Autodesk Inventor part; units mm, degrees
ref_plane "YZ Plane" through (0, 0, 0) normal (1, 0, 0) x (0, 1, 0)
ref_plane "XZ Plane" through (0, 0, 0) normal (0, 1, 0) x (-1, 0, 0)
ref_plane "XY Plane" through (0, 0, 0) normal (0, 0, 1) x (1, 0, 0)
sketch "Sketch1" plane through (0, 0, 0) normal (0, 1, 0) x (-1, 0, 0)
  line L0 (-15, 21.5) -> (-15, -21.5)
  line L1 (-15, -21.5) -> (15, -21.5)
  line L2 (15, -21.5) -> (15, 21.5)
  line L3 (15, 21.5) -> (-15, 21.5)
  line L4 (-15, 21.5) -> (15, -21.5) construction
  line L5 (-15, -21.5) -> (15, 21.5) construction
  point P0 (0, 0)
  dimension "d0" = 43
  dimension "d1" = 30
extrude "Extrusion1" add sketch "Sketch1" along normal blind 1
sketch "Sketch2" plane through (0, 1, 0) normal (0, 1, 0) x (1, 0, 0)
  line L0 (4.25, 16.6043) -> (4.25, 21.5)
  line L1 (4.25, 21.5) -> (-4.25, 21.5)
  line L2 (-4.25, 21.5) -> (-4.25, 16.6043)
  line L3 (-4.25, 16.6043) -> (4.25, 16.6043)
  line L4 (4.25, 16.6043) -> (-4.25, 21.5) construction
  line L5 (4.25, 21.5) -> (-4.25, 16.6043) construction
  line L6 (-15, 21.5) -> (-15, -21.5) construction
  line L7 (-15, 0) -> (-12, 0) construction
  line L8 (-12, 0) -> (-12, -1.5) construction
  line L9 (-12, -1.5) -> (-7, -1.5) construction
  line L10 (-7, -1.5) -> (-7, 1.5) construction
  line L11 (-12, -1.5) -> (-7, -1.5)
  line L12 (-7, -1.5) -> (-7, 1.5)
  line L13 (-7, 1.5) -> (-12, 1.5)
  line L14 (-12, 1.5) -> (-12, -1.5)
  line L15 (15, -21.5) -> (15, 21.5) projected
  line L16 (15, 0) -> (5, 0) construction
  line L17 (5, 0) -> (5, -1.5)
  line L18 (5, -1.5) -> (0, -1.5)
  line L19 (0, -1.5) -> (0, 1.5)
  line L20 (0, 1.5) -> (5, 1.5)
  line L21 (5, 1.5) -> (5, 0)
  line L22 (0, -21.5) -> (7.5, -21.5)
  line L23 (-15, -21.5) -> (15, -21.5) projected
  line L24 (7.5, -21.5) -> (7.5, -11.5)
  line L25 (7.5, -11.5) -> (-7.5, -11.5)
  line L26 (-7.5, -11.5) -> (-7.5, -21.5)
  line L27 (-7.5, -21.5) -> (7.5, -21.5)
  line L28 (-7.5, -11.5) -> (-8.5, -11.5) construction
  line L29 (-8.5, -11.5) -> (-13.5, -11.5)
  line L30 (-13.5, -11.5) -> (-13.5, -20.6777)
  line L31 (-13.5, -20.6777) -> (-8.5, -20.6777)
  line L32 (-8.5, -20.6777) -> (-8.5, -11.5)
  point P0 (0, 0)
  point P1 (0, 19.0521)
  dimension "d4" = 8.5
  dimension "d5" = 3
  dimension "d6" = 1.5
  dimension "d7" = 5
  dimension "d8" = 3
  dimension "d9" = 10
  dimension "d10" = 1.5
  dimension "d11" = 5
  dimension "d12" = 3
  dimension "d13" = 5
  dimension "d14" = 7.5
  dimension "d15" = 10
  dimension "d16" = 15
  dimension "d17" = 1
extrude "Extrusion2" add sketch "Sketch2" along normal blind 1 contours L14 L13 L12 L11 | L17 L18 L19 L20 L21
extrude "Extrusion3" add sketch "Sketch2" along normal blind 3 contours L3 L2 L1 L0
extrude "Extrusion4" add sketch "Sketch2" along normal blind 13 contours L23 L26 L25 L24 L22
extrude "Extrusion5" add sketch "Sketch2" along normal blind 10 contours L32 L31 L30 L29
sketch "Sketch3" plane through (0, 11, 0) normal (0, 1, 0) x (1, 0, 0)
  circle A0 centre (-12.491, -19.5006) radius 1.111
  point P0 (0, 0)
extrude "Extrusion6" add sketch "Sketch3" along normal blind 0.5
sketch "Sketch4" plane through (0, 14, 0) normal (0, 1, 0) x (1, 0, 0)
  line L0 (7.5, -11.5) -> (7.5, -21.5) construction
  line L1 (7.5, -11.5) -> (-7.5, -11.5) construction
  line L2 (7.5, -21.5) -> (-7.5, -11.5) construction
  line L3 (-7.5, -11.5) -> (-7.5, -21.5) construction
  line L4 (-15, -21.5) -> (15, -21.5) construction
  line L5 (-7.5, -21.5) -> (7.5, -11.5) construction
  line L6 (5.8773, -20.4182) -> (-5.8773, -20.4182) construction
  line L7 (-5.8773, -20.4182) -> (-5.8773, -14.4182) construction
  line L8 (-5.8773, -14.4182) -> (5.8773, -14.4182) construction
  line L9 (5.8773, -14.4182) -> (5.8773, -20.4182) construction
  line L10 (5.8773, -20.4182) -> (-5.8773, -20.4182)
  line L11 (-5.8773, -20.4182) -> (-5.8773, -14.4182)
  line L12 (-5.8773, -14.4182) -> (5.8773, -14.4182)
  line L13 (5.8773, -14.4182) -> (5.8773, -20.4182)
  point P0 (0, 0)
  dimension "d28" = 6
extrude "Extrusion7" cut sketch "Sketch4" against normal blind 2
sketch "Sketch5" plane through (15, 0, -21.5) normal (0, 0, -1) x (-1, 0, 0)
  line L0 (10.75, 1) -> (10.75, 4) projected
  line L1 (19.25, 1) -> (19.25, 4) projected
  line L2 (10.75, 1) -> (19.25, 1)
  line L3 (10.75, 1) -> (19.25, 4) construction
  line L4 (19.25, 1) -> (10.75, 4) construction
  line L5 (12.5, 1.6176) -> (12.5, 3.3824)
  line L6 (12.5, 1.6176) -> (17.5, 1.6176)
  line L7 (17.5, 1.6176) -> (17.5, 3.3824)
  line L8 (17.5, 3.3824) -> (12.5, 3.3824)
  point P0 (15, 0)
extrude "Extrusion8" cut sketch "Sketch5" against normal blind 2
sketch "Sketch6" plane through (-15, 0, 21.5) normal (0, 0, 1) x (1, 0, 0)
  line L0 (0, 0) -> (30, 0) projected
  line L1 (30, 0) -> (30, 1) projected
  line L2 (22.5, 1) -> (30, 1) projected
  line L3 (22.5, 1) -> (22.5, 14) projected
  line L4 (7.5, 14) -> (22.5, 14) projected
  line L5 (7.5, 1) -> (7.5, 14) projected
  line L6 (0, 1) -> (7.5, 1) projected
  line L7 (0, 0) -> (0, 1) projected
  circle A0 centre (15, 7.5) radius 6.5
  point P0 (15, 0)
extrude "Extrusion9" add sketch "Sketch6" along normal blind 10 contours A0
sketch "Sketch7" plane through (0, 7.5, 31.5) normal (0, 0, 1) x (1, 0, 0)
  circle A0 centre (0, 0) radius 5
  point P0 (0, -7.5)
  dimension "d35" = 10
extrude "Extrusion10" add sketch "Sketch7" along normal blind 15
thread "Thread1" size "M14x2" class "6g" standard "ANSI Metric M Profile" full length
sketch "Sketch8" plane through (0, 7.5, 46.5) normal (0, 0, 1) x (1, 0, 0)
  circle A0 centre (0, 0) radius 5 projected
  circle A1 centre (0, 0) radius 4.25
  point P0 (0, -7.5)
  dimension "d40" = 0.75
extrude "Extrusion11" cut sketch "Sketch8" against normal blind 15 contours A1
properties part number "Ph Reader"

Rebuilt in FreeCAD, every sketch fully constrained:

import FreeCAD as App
import Part
import Sketcher


def add_polygon(sketch, points):
    """Adds a closed chain of lines whose ends are joined by coincident constraints."""
    first, n = sketch.GeometryCount, len(points)
    for a, b in zip(points, points[1:] + points[:1]):
        sketch.addGeometry(Part.LineSegment(App.Vector(*a, 0), App.Vector(*b, 0)), False)
    for i in range(n):
        sketch.addConstraint(Sketcher.Constraint("Coincident", first + i, 2, first + (i + 1) % n, 1))

doc = App.newDocument("Part")
body = doc.addObject("PartDesign::Body", "Body")

sketch1 = body.newObject("Sketcher::SketchObject", "Sketch")
sketch1.AttachmentSupport = (doc.getObject("XZ_Plane"), [""])
sketch1.MapMode = "FlatFace"
add_polygon(sketch1, [(-15, 21.5), (15, 21.5), (15, -21.5), (-15, -21.5)])
sketch1.addConstraint([
    Sketcher.Constraint("Horizontal", 0),
    Sketcher.Constraint("Vertical", 1),
    Sketcher.Constraint("Horizontal", 2),
    Sketcher.Constraint("Vertical", 3),
    Sketcher.Constraint("Symmetric", 0, 2, 2, 2, -1, 1),
    Sketcher.Constraint("DistanceX", 0, 1, 0, 2, 30.0),
    Sketcher.Constraint("DistanceY", 1, 2, 1, 1, 43.0),
])
pad1 = body.newObject("PartDesign::Pad", "Pad")
pad1.Profile = sketch1
pad1.Length = 1
pad1.Reversed = True

sketch2 = body.newObject("Sketcher::SketchObject", "Sketch001")
sketch2.AttachmentSupport = (doc.getObject("XZ_Plane"), [""])
sketch2.MapMode = "FlatFace"
sketch2.AttachmentOffset = App.Placement(App.Vector(0, 0, -1), App.Rotation())
add_polygon(sketch2, [(-12, -1.5), (-12, 1.5), (-7, 1.5), (-7, -1.5)])
add_polygon(sketch2, [(5, 1.5), (5, -1.5), (0, -1.5), (0, 1.5)])
sketch2.addConstraint([
    Sketcher.Constraint("Vertical", 0),
    Sketcher.Constraint("Horizontal", 1),
    Sketcher.Constraint("Vertical", 2),
    Sketcher.Constraint("Horizontal", 3),
    Sketcher.Constraint("Vertical", 4),
    Sketcher.Constraint("Horizontal", 5),
    Sketcher.Constraint("Vertical", 6),
    Sketcher.Constraint("Horizontal", 7),
    Sketcher.Constraint("Symmetric", 5, 2, 6, 2, -1, 1),
    Sketcher.Constraint("Horizontal", 3, 2, 4, 2),
    Sketcher.Constraint("Horizontal", 1, 2, 6, 2),
    Sketcher.Constraint("Equal", 3, 5),
    Sketcher.Constraint("DistanceX", 1, 1, 1, 2, 5.0),
    Sketcher.Constraint("DistanceY", 0, 1, 0, 2, 3.0),
    Sketcher.Constraint("DistanceX", 0, 2, -1, 1, 12.0),
])
pad2 = body.newObject("PartDesign::Pad", "Pad001")
pad2.Profile = sketch2
pad2.Length = 1
pad2.Reversed = True

sketch3 = body.newObject("Sketcher::SketchObject", "Sketch002")
sketch3.AttachmentSupport = (doc.getObject("XZ_Plane"), [""])
sketch3.MapMode = "FlatFace"
sketch3.AttachmentOffset = App.Placement(App.Vector(0, 0, -1), App.Rotation())
add_polygon(sketch3, [(-4.25, -16.6043), (4.25, -16.6043), (4.25, -21.5), (-4.25, -21.5)])
sketch3.addConstraint([
    Sketcher.Constraint("Horizontal", 0),
    Sketcher.Constraint("Vertical", 1),
    Sketcher.Constraint("Horizontal", 2),
    Sketcher.Constraint("Vertical", 3),
    Sketcher.Constraint("DistanceX", 0, 1, 0, 2, 8.5),
    Sketcher.Constraint("DistanceY", 1, 2, -1, 1, 21.5),
    Sketcher.Constraint("DistanceX", -1, 1, 0, 2, 4.25),
    Sketcher.Constraint("DistanceY", 1, 2, 1, 1, 4.8957),
])
pad3 = body.newObject("PartDesign::Pad", "Pad002")
pad3.Profile = sketch3
pad3.Length = 3
pad3.Reversed = True

sketch4 = body.newObject("Sketcher::SketchObject", "Sketch003")
sketch4.AttachmentSupport = (doc.getObject("XZ_Plane"), [""])
sketch4.MapMode = "FlatFace"
sketch4.AttachmentOffset = App.Placement(App.Vector(0, 0, -1), App.Rotation())
add_polygon(sketch4, [(-7.5, 21.5), (7.5, 21.5), (7.5, 11.5), (-7.5, 11.5)])
sketch4.addConstraint([
    Sketcher.Constraint("Horizontal", 0),
    Sketcher.Constraint("Vertical", 1),
    Sketcher.Constraint("Horizontal", 2),
    Sketcher.Constraint("Vertical", 3),
    Sketcher.Constraint("DistanceX", 0, 1, 0, 2, 15.0),
    Sketcher.Constraint("DistanceY", 1, 2, 1, 1, 10.0),
    Sketcher.Constraint("DistanceX", -1, 1, 0, 2, 7.5),
    Sketcher.Constraint("DistanceY", -1, 1, 0, 2, 21.5),
])
pad4 = body.newObject("PartDesign::Pad", "Pad003")
pad4.Profile = sketch4
pad4.Length = 13
pad4.Reversed = True

sketch5 = body.newObject("Sketcher::SketchObject", "Sketch004")
sketch5.AttachmentSupport = (doc.getObject("XZ_Plane"), [""])
sketch5.MapMode = "FlatFace"
sketch5.AttachmentOffset = App.Placement(App.Vector(0, 0, -1), App.Rotation())
add_polygon(sketch5, [(-8.5, 20.6777), (-8.5, 11.5), (-13.5, 11.5), (-13.5, 20.6777)])
sketch5.addConstraint([
    Sketcher.Constraint("Vertical", 0),
    Sketcher.Constraint("Horizontal", 1),
    Sketcher.Constraint("Vertical", 2),
    Sketcher.Constraint("Horizontal", 3),
    Sketcher.Constraint("DistanceX", 1, 2, 1, 1, 5.0),
    Sketcher.Constraint("DistanceX", 0, 2, -1, 1, 8.5),
    Sketcher.Constraint("DistanceY", -1, 1, 0, 2, 11.5),
    Sketcher.Constraint("DistanceY", 0, 2, 0, 1, 9.1777),
])
pad5 = body.newObject("PartDesign::Pad", "Pad004")
pad5.Profile = sketch5
pad5.Length = 10
pad5.Reversed = True

sketch6 = body.newObject("Sketcher::SketchObject", "Sketch005")
sketch6.AttachmentSupport = (doc.getObject("XZ_Plane"), [""])
sketch6.MapMode = "FlatFace"
sketch6.AttachmentOffset = App.Placement(App.Vector(0, 0, -11), App.Rotation())
sketch6.addGeometry(Part.Circle(App.Vector(-12.491, 19.5006, 0), App.Vector(0, 0, 1), 1.111), False)
sketch6.addConstraint([
    Sketcher.Constraint("Diameter", 0, 2.222),
    Sketcher.Constraint("DistanceX", 0, 3, -1, 1, 12.491),
    Sketcher.Constraint("DistanceY", -1, 1, 0, 3, 19.5006),
])
pad6 = body.newObject("PartDesign::Pad", "Pad005")
pad6.Profile = sketch6
pad6.Length = 0.5
pad6.Reversed = True

sketch7 = body.newObject("Sketcher::SketchObject", "Sketch006")
sketch7.AttachmentSupport = (doc.getObject("XZ_Plane"), [""])
sketch7.MapMode = "FlatFace"
sketch7.AttachmentOffset = App.Placement(App.Vector(0, 0, -14), App.Rotation())
add_polygon(sketch7, [(-5.8773, 20.4182), (5.8773, 20.4182), (5.8773, 14.4182), (-5.8773, 14.4182)])
sketch7.addConstraint([
    Sketcher.Constraint("Horizontal", 0),
    Sketcher.Constraint("Vertical", 1),
    Sketcher.Constraint("Horizontal", 2),
    Sketcher.Constraint("Vertical", 3),
    Sketcher.Constraint("DistanceY", 1, 2, 1, 1, 6.0),
    Sketcher.Constraint("DistanceX", 0, 1, 0, 2, 11.7546),
    Sketcher.Constraint("DistanceX", -1, 1, 0, 2, 5.8773),
    Sketcher.Constraint("DistanceY", -1, 1, 0, 2, 20.4182),
])
pocket1 = body.newObject("PartDesign::Pocket", "Pocket")
pocket1.Profile = sketch7
pocket1.Length = 2
pocket1.Reversed = True

sketch8 = body.newObject("Sketcher::SketchObject", "Sketch007")
sketch8.AttachmentSupport = (doc.getObject("XY_Plane"), [""])
sketch8.MapMode = "FlatFace"
sketch8.AttachmentOffset = App.Placement(App.Vector(0, 0, -21.5), App.Rotation())
add_polygon(sketch8, [(2.5, 3.3824), (2.5, 1.6176), (-2.5, 1.6176), (-2.5, 3.3824)])
sketch8.addConstraint([
    Sketcher.Constraint("Vertical", 0),
    Sketcher.Constraint("Horizontal", 1),
    Sketcher.Constraint("Vertical", 2),
    Sketcher.Constraint("Horizontal", 3),
    Sketcher.Constraint("DistanceX", 1, 2, 1, 1, 5.0),
    Sketcher.Constraint("DistanceX", -1, 1, 0, 2, 2.5),
    Sketcher.Constraint("DistanceY", 0, 2, 0, 1, 1.7648),
    Sketcher.Constraint("DistanceY", -1, 1, 0, 2, 1.6176),
])
pocket2 = body.newObject("PartDesign::Pocket", "Pocket001")
pocket2.Profile = sketch8
pocket2.Length = 2
pocket2.Reversed = True

sketch9 = body.newObject("Sketcher::SketchObject", "Sketch008")
sketch9.AttachmentSupport = (doc.getObject("XY_Plane"), [""])
sketch9.MapMode = "FlatFace"
sketch9.AttachmentOffset = App.Placement(App.Vector(0, 0, 21.5), App.Rotation())
sketch9.addGeometry(Part.Circle(App.Vector(0, 7.5, 0), App.Vector(0, 0, 1), 6.5), False)
sketch9.addConstraint([
    Sketcher.Constraint("PointOnObject", 0, 3, -2),
    Sketcher.Constraint("Diameter", 0, 13.0),
    Sketcher.Constraint("DistanceY", -1, 1, 0, 3, 7.5),
])
pad7 = body.newObject("PartDesign::Pad", "Pad006")
pad7.Profile = sketch9
pad7.Length = 10

sketch10 = body.newObject("Sketcher::SketchObject", "Sketch009")
sketch10.AttachmentSupport = (doc.getObject("XY_Plane"), [""])
sketch10.MapMode = "FlatFace"
sketch10.AttachmentOffset = App.Placement(App.Vector(0, 0, 31.5), App.Rotation())
sketch10.addGeometry(Part.Circle(App.Vector(0, 7.5, 0), App.Vector(0, 0, 1), 5), False)
sketch10.addConstraint([
    Sketcher.Constraint("PointOnObject", 0, 3, -2),
    Sketcher.Constraint("Diameter", 0, 10.0),
    Sketcher.Constraint("DistanceY", -1, 1, 0, 3, 7.5),
])
pad8 = body.newObject("PartDesign::Pad", "Pad007")
pad8.Profile = sketch10
pad8.Length = 15

sketch11 = body.newObject("Sketcher::SketchObject", "Sketch010")
sketch11.AttachmentSupport = (doc.getObject("XY_Plane"), [""])
sketch11.MapMode = "FlatFace"
sketch11.AttachmentOffset = App.Placement(App.Vector(0, 0, 46.5), App.Rotation())
sketch11.addGeometry(Part.Circle(App.Vector(0, 7.5, 0), App.Vector(0, 0, 1), 4.25), False)
sketch11.addConstraint([
    Sketcher.Constraint("PointOnObject", 0, 3, -2),
    Sketcher.Constraint("Diameter", 0, 8.5),
    Sketcher.Constraint("DistanceY", -1, 1, 0, 3, 7.5),
])
pocket3 = body.newObject("PartDesign::Pocket", "Pocket002")
pocket3.Profile = sketch11
pocket3.Length = 15

doc.recompute()
